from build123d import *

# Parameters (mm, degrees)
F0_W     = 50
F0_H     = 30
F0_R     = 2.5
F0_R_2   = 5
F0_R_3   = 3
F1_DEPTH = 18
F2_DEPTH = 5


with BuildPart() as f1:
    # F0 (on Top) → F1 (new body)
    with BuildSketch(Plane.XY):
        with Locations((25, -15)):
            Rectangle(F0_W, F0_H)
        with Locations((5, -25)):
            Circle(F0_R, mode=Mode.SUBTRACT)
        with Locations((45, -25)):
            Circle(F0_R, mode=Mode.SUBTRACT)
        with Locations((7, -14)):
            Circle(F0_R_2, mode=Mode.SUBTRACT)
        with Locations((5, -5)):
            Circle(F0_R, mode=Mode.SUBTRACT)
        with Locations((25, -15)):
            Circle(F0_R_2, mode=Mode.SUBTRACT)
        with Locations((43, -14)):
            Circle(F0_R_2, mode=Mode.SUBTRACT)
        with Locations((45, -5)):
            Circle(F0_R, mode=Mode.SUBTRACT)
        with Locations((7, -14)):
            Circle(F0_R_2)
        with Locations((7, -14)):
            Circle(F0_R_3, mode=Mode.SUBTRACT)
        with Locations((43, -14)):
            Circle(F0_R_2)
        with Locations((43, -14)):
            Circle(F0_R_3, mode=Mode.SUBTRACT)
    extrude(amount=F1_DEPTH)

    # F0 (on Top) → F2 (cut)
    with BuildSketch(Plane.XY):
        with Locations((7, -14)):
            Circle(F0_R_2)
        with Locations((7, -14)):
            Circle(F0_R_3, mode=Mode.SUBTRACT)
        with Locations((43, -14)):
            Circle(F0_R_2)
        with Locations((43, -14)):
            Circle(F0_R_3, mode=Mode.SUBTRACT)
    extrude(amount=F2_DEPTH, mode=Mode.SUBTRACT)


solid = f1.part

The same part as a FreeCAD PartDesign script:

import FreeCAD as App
import Part
import Sketcher


def add_polygon(sketch, points):
    """Adds a closed chain of lines whose ends are joined by coincident constraints."""
    first, n = sketch.GeometryCount, len(points)
    for a, b in zip(points, points[1:] + points[:1]):
        sketch.addGeometry(Part.LineSegment(App.Vector(*a, 0), App.Vector(*b, 0)), False)
    for i in range(n):
        sketch.addConstraint(Sketcher.Constraint("Coincident", first + i, 2, first + (i + 1) % n, 1))

doc = App.newDocument("Part")
params = doc.addObject("Spreadsheet::Sheet", "Params")
for row, (alias, value) in enumerate([
    ("sketch1_diameter", "5 mm"),
    ("sketch1_diameter2", "6 mm"),
    ("sketch1_diameter3", "10 mm"),
    ("sketch1_width", "50 mm"),
    ("sketch1_height", "30 mm"),
    ("pad1_length", "18 mm"),
    ("sketch2_diameter", "10 mm"),
    ("sketch2_diameter2", "6 mm"),
    ("pocket1_length", "5 mm"),
], start=1):
    params.set(f"A{row}", alias)
    params.set(f"B{row}", "=" + value)
    params.setAlias(f"B{row}", alias)

body = doc.addObject("PartDesign::Body", "Body")

# Sketch on XY plane
sketch1 = body.newObject("Sketcher::SketchObject", "Sketch")
sketch1.AttachmentSupport = (doc.getObject("XY_Plane"), [""])
sketch1.MapMode = "FlatFace"
add_polygon(sketch1, [(0, 0), (0, -30), (50, -30), (50, 0)])  # lines 0-3
sketch1.addGeometry(Part.Circle(App.Vector(5, -25, 0), App.Vector(0, 0, 1), 2.5), False)  # 4
sketch1.addGeometry(Part.Circle(App.Vector(45, -25, 0), App.Vector(0, 0, 1), 2.5), False)  # 5
sketch1.addGeometry(Part.Circle(App.Vector(7, -14, 0), App.Vector(0, 0, 1), 3), False)  # 6
sketch1.addGeometry(Part.Circle(App.Vector(5, -5, 0), App.Vector(0, 0, 1), 2.5), False)  # 7
sketch1.addGeometry(Part.Circle(App.Vector(25, -15, 0), App.Vector(0, 0, 1), 5), False)  # 8
sketch1.addGeometry(Part.Circle(App.Vector(43, -14, 0), App.Vector(0, 0, 1), 3), False)  # 9
sketch1.addGeometry(Part.Circle(App.Vector(45, -5, 0), App.Vector(0, 0, 1), 2.5), False)  # 10
sketch1.addConstraint(Sketcher.Constraint("Vertical", 0))
sketch1.addConstraint(Sketcher.Constraint("Horizontal", 1))
sketch1.addConstraint(Sketcher.Constraint("Vertical", 2))
sketch1.addConstraint(Sketcher.Constraint("Horizontal", 3))
sketch1.addConstraint(Sketcher.Constraint("Coincident", 3, 2, -1, 1))
sketch1.addConstraint(Sketcher.Constraint("Equal", 4, 5))
sketch1.addConstraint(Sketcher.Constraint("Equal", 5, 7))
sketch1.addConstraint(Sketcher.Constraint("Equal", 6, 9))
sketch1.addConstraint(Sketcher.Constraint("Equal", 7, 10))
sketch1.addConstraint(Sketcher.Constraint("Horizontal", 4, 3, 5, 3))
sketch1.addConstraint(Sketcher.Constraint("Horizontal", 6, 3, 9, 3))
sketch1.addConstraint(Sketcher.Constraint("Horizontal", 7, 3, 10, 3))
sketch1.addConstraint(Sketcher.Constraint("Vertical", 4, 3, 7, 3))
sketch1.addConstraint(Sketcher.Constraint("Vertical", 5, 3, 10, 3))
sketch1.addConstraint(Sketcher.Constraint("Diameter", 4, 5.0))
sketch1.addConstraint(Sketcher.Constraint("Diameter", 6, 6.0))
sketch1.addConstraint(Sketcher.Constraint("Diameter", 8, 10.0))
sketch1.addConstraint(Sketcher.Constraint("DistanceX", 1, 1, 1, 2, 50.0))
sketch1.addConstraint(Sketcher.Constraint("DistanceY", 0, 2, 0, 1, 30.0))
sketch1.addConstraint(Sketcher.Constraint("DistanceX", -1, 1, 4, 3, 5.0))
sketch1.addConstraint(Sketcher.Constraint("DistanceY", 4, 3, -1, 1, 25.0))
sketch1.addConstraint(Sketcher.Constraint("DistanceX", -1, 1, 5, 3, 45.0))
sketch1.addConstraint(Sketcher.Constraint("DistanceX", -1, 1, 6, 3, 7.0))
sketch1.addConstraint(Sketcher.Constraint("DistanceY", 6, 3, -1, 1, 14.0))
sketch1.addConstraint(Sketcher.Constraint("DistanceY", 7, 3, -1, 1, 5.0))
sketch1.addConstraint(Sketcher.Constraint("DistanceX", -1, 1, 8, 3, 25.0))
sketch1.addConstraint(Sketcher.Constraint("DistanceY", 8, 3, -1, 1, 15.0))
sketch1.addConstraint(Sketcher.Constraint("DistanceX", -1, 1, 9, 3, 43.0))
sketch1.setExpression("Constraints[18]", "Params.sketch1_diameter")
sketch1.setExpression("Constraints[19]", "Params.sketch1_diameter2")
sketch1.setExpression("Constraints[20]", "Params.sketch1_diameter3")
sketch1.setExpression("Constraints[21]", "Params.sketch1_width")
sketch1.setExpression("Constraints[22]", "Params.sketch1_height")
pad1 = body.newObject("PartDesign::Pad", "Pad")
pad1.Profile = sketch1
pad1.setExpression("Length", "Params.pad1_length")

# Sketch on XY plane
sketch2 = body.newObject("Sketcher::SketchObject", "Sketch001")
sketch2.AttachmentSupport = (doc.getObject("XY_Plane"), [""])
sketch2.MapMode = "FlatFace"
sketch2.addGeometry(Part.Circle(App.Vector(7, -14, 0), App.Vector(0, 0, 1), 5), False)
sketch2.addGeometry(Part.Circle(App.Vector(7, -14, 0), App.Vector(0, 0, 1), 3), False)
sketch2.addGeometry(Part.Circle(App.Vector(43, -14, 0), App.Vector(0, 0, 1), 5), False)
sketch2.addGeometry(Part.Circle(App.Vector(43, -14, 0), App.Vector(0, 0, 1), 3), False)
sketch2.addConstraint(Sketcher.Constraint("Coincident", 1, 3, 0, 3))
sketch2.addConstraint(Sketcher.Constraint("Coincident", 3, 3, 2, 3))
sketch2.addConstraint(Sketcher.Constraint("Equal", 0, 2))
sketch2.addConstraint(Sketcher.Constraint("Equal", 1, 3))
sketch2.addConstraint(Sketcher.Constraint("Horizontal", 1, 3, 2, 3))
sketch2.addConstraint(Sketcher.Constraint("Diameter", 0, 10.0))
sketch2.addConstraint(Sketcher.Constraint("Diameter", 1, 6.0))
sketch2.addConstraint(Sketcher.Constraint("DistanceX", -1, 1, 0, 3, 7.0))
sketch2.addConstraint(Sketcher.Constraint("DistanceY", 0, 3, -1, 1, 14.0))
sketch2.addConstraint(Sketcher.Constraint("DistanceX", -1, 1, 2, 3, 43.0))
sketch2.setExpression("Constraints[5]", "Params.sketch2_diameter")
sketch2.setExpression("Constraints[6]", "Params.sketch2_diameter2")
pocket1 = body.newObject("PartDesign::Pocket", "Pocket")
pocket1.Profile = sketch2
pocket1.setExpression("Length", "Params.pocket1_length")
pocket1.Reversed = True

doc.recompute()
